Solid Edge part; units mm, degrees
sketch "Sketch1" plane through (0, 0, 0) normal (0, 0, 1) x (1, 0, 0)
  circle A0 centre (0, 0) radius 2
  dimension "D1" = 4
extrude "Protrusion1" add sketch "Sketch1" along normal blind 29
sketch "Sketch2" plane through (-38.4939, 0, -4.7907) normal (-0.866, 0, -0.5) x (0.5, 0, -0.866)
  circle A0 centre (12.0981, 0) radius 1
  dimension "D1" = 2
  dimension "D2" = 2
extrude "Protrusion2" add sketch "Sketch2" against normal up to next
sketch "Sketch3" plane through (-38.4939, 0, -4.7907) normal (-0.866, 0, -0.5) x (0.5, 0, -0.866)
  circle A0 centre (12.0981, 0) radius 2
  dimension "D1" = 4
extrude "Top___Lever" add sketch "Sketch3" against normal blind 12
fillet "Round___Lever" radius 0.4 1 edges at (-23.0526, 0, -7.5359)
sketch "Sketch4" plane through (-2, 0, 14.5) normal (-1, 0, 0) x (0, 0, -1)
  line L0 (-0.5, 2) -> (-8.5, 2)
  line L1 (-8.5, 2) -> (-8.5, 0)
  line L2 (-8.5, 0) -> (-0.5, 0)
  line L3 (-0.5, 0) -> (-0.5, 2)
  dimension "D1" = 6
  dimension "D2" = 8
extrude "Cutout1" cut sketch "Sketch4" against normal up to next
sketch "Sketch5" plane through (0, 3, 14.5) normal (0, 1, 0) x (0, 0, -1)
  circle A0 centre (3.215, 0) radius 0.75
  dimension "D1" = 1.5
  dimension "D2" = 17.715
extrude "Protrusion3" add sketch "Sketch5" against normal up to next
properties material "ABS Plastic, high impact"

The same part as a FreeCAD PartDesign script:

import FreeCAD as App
import Part
import Sketcher
from FreeCAD import Vector
Q = App.Units.Quantity


def edges_at(feature, points):
    """Names of the edges that pass closest to the given points."""
    edges = feature.Shape.Edges
    near = lambda p: min(range(len(edges)), key=lambda i: edges[i].distToShape(Part.Vertex(*p))[0])
    return sorted({f"Edge{near(p) + 1}" for p in points})

doc = App.newDocument("Part")
body = doc.addObject("PartDesign::Body", "Body")

# Sketch on XY plane
sketch1 = body.newObject("Sketcher::SketchObject", "Sketch")
sketch1.AttachmentSupport = (doc.getObject("XY_Plane"), [""])
sketch1.MapMode = "FlatFace"
sketch1.addGeometry(Part.Circle(Vector(0, 0, 0), Vector(0, 0, 1), 2), False)
sketch1.addConstraint([
    Sketcher.Constraint("Coincident", 0, 3, -1, 1),
    Sketcher.Constraint("Diameter", 0, Q("4 mm")),
])
pad1 = body.newObject("PartDesign::Pad", "Pad")
pad1.Profile = sketch1
pad1.Length = 29

# Sketch on an angled plane
sketch2 = body.newObject("Sketcher::SketchObject", "Sketch001")
sketch2.Placement = App.Placement(Vector(-38.4939, 0, -4.7907), App.Rotation(Vector(0.5, 0, -0.866025404), Vector(0, -1, 0), Vector(-0.866025404, 0, -0.5), "ZXY"))
sketch2.addGeometry(Part.Circle(Vector(12.1, 0, 0), Vector(0, 0, 1), 1), False)
sketch2.addConstraint([
    Sketcher.Constraint("PointOnObject", 0, 3, -1),
    Sketcher.Constraint("Diameter", 0, Q("2 mm")),
    Sketcher.Constraint("DistanceX", -1, 1, 0, 3, Q("12.098 mm")),
])
pad2 = body.newObject("PartDesign::Pad", "Pad001")
pad2.Profile = sketch2
pad2.Type = "UpToFirst"
pad2.Reversed = True

# Sketch on an angled plane
sketch3 = body.newObject("Sketcher::SketchObject", "Sketch002")
sketch3.Placement = App.Placement(Vector(-38.4939, 0, -4.7907), App.Rotation(Vector(0.5, 0, -0.866025404), Vector(0, -1, 0), Vector(-0.866025404, 0, -0.5), "ZXY"))
sketch3.addGeometry(Part.Circle(Vector(12.1, 0, 0), Vector(0, 0, 1), 2), False)
sketch3.addConstraint([
    Sketcher.Constraint("PointOnObject", 0, 3, -1),
    Sketcher.Constraint("Diameter", 0, Q("4 mm")),
    Sketcher.Constraint("DistanceX", -1, 1, 0, 3, Q("12.098 mm")),
])
pad3 = body.newObject("PartDesign::Pad", "Pad002")
pad3.Profile = sketch3
pad3.Length = 12
pad3.Reversed = True
doc.recompute()

fillet = body.newObject("PartDesign::Fillet", "Fillet")
fillet.Base = (pad3, edges_at(pad3, [(-23.053, 0, -7.536)]))
fillet.Radius = 0.4

# Sketch on YZ plane
sketch4 = body.newObject("Sketcher::SketchObject", "Sketch003")
sketch4.AttachmentSupport = (doc.getObject("YZ_Plane"), [""])
sketch4.MapMode = "FlatFace"
sketch4.AttachmentOffset = App.Placement(Vector(0, 0, -2), App.Rotation())
sketch4.addGeometry([
    Part.LineSegment(Vector(0, 15, 0), Vector(-2, 15, 0)),
    Part.LineSegment(Vector(-2, 15, 0), Vector(-2, 23, 0)),
    Part.LineSegment(Vector(-2, 23, 0), Vector(0, 23, 0)),
    Part.LineSegment(Vector(0, 23, 0), Vector(0, 15, 0)),
], False)
sketch4.addConstraint([
    Sketcher.Constraint("Coincident", 0, 2, 1, 1),
    Sketcher.Constraint("Coincident", 1, 2, 2, 1),
    Sketcher.Constraint("Coincident", 2, 2, 3, 1),
    Sketcher.Constraint("Coincident", 3, 2, 0, 1),
    Sketcher.Constraint("Horizontal", 0),
    Sketcher.Constraint("Vertical", 1),
    Sketcher.Constraint("Horizontal", 2),
    Sketcher.Constraint("Vertical", 3),
    Sketcher.Constraint("PointOnObject", 2, 2, -2),
    Sketcher.Constraint("DistanceX", 0, 2, 0, 1, Q("2 mm")),
    Sketcher.Constraint("DistanceY", 1, 1, 1, 2, Q("8 mm")),
    Sketcher.Constraint("DistanceY", -1, 1, 0, 2, Q("15 mm")),
])
pocket1 = body.newObject("PartDesign::Pocket", "Pocket")
pocket1.Profile = sketch4
pocket1.Length = 4
pocket1.Reversed = True

# Sketch on XZ plane
sketch5 = body.newObject("Sketcher::SketchObject", "Sketch004")
sketch5.AttachmentSupport = (doc.getObject("XZ_Plane"), [""])
sketch5.MapMode = "FlatFace"
sketch5.AttachmentOffset = App.Placement(Vector(0, 0, -3), App.Rotation())
sketch5.addGeometry(Part.Circle(Vector(0, 11.3, 0), Vector(0, 0, 1), 0.8), False)
sketch5.addConstraint([
    Sketcher.Constraint("PointOnObject", 0, 3, -2),
    Sketcher.Constraint("Diameter", 0, Q("1.5 mm")),
    Sketcher.Constraint("DistanceY", -1, 1, 0, 3, Q("11.285 mm")),
])
pad4 = body.newObject("PartDesign::Pad", "Pad003")
pad4.Profile = sketch5
pad4.Type = "UpToFirst"

doc.recompute()
